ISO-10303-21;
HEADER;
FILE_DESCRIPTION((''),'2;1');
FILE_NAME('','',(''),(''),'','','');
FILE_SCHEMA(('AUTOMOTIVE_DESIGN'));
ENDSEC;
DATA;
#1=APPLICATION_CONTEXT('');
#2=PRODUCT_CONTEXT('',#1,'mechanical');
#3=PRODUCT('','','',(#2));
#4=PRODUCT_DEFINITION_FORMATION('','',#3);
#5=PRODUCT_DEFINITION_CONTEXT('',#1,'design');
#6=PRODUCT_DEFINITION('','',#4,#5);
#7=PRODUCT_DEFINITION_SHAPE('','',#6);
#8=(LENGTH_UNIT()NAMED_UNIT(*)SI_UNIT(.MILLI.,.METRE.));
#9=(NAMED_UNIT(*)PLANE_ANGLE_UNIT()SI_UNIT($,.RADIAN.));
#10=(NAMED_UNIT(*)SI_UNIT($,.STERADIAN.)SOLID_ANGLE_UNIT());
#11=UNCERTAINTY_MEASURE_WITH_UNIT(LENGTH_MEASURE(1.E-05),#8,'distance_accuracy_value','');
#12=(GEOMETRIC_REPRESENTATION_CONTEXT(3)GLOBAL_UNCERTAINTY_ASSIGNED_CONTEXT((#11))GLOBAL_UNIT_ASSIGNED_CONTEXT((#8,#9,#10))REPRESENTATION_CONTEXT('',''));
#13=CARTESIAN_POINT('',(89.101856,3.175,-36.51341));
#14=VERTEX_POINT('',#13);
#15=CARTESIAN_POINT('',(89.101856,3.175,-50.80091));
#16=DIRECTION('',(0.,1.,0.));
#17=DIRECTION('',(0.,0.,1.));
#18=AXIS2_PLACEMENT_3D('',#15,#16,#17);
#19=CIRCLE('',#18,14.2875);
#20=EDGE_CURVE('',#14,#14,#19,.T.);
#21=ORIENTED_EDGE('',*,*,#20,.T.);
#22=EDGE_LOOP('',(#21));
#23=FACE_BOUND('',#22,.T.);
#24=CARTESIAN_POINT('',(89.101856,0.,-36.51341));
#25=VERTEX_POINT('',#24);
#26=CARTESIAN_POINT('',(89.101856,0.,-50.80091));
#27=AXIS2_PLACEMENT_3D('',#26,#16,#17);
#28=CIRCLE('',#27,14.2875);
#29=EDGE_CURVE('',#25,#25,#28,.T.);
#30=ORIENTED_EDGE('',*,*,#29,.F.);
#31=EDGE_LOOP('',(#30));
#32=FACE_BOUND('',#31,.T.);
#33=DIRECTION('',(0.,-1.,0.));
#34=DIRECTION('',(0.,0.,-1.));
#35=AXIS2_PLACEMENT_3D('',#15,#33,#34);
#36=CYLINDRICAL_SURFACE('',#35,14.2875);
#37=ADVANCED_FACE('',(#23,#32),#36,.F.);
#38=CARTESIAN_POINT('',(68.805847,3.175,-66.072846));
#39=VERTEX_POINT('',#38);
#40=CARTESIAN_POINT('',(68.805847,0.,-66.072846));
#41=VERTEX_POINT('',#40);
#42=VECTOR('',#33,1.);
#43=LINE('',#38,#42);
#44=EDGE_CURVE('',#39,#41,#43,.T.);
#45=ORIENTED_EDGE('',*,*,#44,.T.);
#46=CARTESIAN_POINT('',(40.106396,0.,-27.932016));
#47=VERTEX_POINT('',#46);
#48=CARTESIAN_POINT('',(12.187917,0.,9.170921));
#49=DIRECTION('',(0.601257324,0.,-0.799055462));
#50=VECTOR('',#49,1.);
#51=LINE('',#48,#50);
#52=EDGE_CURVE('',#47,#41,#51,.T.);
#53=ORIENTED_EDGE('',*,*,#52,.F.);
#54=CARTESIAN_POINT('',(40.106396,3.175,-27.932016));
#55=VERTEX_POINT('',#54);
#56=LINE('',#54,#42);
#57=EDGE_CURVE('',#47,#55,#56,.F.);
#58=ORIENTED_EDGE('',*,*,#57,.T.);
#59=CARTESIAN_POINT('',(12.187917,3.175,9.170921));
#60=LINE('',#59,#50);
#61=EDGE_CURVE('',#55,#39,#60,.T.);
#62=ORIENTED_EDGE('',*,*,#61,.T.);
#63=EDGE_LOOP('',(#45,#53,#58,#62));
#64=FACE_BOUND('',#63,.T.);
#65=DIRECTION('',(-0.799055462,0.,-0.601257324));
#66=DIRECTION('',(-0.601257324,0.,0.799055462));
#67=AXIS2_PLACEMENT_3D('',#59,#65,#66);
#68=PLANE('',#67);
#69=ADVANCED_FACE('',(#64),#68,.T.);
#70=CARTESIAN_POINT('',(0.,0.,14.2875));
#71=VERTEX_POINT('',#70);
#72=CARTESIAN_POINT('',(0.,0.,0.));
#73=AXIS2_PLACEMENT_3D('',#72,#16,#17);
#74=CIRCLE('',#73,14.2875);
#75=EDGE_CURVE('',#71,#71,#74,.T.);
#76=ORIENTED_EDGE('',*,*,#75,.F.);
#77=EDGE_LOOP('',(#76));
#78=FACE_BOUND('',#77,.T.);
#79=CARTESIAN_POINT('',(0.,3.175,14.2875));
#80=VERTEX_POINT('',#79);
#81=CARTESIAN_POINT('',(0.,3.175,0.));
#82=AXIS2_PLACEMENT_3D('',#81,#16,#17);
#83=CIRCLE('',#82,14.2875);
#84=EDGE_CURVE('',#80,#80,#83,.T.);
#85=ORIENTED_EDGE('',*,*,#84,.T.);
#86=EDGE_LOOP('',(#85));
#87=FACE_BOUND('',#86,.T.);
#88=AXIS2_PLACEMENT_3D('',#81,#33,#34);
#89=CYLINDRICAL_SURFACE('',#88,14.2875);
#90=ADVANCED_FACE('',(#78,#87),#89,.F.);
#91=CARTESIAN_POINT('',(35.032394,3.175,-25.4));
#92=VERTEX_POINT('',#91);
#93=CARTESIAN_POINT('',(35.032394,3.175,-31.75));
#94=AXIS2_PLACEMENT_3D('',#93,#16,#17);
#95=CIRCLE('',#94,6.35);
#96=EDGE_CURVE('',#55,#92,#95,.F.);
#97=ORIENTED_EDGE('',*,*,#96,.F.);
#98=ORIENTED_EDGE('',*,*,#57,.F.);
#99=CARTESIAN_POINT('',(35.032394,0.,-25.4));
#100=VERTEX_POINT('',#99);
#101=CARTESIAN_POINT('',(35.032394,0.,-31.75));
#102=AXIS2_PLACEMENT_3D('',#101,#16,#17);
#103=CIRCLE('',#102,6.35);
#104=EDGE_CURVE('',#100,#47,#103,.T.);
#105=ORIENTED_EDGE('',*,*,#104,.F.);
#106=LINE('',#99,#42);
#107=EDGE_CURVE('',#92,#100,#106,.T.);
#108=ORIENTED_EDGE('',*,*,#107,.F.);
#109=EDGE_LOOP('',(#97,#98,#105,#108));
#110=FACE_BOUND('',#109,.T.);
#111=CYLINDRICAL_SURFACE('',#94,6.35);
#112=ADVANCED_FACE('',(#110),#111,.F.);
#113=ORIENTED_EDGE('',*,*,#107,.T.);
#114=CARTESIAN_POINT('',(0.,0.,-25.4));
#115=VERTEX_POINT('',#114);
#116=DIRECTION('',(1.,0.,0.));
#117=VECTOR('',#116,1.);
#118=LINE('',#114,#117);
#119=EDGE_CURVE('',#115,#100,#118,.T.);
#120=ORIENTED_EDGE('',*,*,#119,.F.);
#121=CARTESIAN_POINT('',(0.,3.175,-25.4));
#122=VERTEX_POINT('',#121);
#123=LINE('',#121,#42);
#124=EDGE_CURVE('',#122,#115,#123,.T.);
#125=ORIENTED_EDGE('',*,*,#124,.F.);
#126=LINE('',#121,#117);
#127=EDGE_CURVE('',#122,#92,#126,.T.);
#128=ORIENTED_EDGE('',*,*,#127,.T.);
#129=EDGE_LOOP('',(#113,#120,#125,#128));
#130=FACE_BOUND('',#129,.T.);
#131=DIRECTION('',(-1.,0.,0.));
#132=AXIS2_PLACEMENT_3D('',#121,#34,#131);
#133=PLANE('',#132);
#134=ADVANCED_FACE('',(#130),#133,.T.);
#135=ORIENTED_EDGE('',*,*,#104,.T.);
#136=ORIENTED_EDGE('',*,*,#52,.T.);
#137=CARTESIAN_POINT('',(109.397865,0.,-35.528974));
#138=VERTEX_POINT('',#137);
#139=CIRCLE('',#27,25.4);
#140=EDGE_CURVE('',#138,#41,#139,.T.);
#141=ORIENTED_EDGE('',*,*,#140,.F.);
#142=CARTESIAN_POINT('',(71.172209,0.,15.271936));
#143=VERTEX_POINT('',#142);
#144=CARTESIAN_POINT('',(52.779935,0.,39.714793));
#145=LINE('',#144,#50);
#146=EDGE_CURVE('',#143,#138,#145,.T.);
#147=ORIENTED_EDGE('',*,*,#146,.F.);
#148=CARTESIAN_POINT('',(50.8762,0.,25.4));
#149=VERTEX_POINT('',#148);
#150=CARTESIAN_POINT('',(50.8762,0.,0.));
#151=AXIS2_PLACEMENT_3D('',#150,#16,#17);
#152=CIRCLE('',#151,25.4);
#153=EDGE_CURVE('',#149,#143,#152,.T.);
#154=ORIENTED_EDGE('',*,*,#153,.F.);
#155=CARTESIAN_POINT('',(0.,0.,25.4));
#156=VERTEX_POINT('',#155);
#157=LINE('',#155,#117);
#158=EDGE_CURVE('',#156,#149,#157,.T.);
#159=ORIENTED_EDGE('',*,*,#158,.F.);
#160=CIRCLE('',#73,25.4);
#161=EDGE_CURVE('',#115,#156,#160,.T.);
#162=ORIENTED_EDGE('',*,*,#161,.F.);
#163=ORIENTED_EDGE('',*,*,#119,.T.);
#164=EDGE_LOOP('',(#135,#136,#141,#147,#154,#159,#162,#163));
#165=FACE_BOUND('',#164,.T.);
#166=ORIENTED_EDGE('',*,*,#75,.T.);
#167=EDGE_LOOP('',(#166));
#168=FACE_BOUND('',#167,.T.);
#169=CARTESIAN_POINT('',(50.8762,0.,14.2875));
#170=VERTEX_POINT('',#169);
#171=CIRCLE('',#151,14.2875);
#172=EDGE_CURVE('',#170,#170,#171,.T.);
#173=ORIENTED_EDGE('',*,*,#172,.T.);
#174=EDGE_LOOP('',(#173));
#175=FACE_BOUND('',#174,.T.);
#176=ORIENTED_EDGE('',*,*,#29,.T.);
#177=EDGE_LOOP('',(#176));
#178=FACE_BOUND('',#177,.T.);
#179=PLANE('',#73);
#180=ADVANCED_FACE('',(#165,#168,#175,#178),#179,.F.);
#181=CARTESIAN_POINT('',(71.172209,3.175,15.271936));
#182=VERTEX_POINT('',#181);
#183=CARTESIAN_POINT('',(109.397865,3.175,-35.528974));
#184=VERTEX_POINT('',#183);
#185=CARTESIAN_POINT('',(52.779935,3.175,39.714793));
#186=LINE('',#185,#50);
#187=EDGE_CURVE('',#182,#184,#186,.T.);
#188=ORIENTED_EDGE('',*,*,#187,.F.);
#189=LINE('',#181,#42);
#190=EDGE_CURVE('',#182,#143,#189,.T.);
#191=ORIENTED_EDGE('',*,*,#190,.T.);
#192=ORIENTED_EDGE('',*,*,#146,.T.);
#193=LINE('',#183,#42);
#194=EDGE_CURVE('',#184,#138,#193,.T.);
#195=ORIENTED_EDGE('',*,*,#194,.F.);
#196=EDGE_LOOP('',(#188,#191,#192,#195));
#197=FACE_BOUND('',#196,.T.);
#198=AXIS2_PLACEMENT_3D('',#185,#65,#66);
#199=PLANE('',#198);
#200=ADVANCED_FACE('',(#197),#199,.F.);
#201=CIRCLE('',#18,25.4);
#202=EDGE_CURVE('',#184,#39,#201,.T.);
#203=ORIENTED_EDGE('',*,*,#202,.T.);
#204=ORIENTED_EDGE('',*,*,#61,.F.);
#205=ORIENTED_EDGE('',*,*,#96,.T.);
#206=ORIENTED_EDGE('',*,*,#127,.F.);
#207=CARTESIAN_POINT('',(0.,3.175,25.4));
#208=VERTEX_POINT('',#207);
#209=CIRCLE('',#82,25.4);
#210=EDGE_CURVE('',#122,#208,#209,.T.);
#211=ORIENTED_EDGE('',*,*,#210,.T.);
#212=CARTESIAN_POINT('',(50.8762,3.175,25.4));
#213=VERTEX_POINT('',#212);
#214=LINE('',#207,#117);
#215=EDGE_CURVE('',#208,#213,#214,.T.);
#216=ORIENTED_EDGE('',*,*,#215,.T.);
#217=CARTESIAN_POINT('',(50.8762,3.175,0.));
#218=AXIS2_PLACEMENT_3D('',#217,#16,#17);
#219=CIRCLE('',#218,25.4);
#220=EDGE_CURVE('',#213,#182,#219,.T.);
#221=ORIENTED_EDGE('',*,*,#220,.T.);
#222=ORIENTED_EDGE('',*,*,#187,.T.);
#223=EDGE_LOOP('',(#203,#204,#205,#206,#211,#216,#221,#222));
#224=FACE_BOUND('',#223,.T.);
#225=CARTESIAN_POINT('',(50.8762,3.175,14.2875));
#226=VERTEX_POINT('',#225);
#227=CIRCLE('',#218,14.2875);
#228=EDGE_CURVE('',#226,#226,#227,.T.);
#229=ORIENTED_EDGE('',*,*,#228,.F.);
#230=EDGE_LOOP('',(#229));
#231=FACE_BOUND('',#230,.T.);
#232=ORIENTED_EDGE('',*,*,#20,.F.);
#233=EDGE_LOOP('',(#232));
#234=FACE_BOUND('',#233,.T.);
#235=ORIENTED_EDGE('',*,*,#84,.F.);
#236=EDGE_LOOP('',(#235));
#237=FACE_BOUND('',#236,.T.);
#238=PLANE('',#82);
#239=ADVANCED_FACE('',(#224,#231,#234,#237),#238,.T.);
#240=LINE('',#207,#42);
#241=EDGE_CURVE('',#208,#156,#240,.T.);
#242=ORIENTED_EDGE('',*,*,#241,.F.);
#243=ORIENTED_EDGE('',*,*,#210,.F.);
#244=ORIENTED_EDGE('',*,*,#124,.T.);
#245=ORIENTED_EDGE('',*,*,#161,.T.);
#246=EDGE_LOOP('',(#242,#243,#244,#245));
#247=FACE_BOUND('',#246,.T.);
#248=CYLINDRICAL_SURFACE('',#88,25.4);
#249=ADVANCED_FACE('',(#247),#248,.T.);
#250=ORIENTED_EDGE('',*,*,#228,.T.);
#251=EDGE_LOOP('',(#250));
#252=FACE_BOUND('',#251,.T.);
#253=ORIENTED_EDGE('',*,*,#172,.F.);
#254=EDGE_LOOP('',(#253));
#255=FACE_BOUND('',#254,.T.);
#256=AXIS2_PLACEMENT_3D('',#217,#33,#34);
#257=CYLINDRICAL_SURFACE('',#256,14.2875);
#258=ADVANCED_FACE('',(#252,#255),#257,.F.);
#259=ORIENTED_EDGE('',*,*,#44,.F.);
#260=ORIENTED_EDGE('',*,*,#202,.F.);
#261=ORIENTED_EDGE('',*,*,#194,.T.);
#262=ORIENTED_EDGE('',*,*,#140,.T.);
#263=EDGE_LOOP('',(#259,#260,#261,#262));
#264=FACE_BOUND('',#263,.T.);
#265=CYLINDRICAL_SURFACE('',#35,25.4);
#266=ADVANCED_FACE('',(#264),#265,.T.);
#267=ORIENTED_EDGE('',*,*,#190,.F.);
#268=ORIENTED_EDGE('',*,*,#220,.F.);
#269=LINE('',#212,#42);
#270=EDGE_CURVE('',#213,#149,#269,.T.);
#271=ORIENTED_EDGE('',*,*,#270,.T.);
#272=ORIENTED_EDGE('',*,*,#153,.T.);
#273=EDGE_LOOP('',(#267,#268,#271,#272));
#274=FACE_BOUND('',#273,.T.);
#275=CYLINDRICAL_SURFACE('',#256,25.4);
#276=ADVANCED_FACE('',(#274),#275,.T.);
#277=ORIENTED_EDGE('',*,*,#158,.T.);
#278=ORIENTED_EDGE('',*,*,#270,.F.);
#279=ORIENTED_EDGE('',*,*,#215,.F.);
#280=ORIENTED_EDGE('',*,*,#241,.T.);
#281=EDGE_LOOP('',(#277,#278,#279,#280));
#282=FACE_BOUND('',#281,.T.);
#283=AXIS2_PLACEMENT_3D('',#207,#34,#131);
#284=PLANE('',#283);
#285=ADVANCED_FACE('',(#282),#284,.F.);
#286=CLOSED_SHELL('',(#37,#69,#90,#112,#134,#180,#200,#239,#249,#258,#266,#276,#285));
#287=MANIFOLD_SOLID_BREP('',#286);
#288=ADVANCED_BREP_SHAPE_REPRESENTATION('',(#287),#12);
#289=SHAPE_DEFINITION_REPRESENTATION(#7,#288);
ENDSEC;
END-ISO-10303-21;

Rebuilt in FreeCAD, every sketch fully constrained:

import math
import FreeCAD as App
import Part
import Sketcher

V = App.Vector
Q = App.Units.Quantity


def edges_at(feature, points):
    """Names of the edges that pass closest to the given points."""
    edges = feature.Shape.Edges
    near = lambda p: min(range(len(edges)), key=lambda i: edges[i].distToShape(Part.Vertex(*p))[0])
    return sorted({f"Edge{near(p) + 1}" for p in points})

doc = App.newDocument("Part")
body = doc.addObject("PartDesign::Body", "Body")

# Sketch on XZ plane
sketch1 = body.newObject("Sketcher::SketchObject", "Sketch")
sketch1.AttachmentSupport = (doc.getObject("XZ_Plane"), [""])
sketch1.MapMode = "FlatFace"
sketch1.addGeometry([
    Part.LineSegment(V(71, 15, 0), V(109, -36, 0)),  # 0
    Part.ArcOfCircle(Part.Circle(V(89, -51, 0), V(0, 0, 1), 25), math.radians(-143), math.radians(37)),  # 1
    Part.LineSegment(V(69, -66, 0), V(38, -25, 0)),  # 2
    Part.LineSegment(V(38, -25, 0), V(0, -25, 0)),  # 3
    Part.ArcOfCircle(Part.Circle(V(0, 0, 0), V(0, 0, 1), 25), math.radians(90), math.radians(270)),  # 4
    Part.LineSegment(V(0, 25, 0), V(51, 25, 0)),  # 5
    Part.ArcOfCircle(Part.Circle(V(51, 0, 0), V(0, 0, 1), 25), math.radians(37), math.radians(90)),  # 6
    Part.Circle(V(0, 0, 0), V(0, 0, 1), 14),  # 7
    Part.Circle(V(51, 0, 0), V(0, 0, 1), 14),  # 8
    Part.Circle(V(89, -51, 0), V(0, 0, 1), 14),  # 9
], False)
sketch1.addConstraint([
    Sketcher.Constraint("Tangent", 0, 2, 1, 2),
    Sketcher.Constraint("Tangent", 1, 1, 2, 1),
    Sketcher.Constraint("Coincident", 2, 2, 3, 1),
    Sketcher.Constraint("Tangent", 3, 2, 4, 2),
    Sketcher.Constraint("Tangent", 4, 1, 5, 1),
    Sketcher.Constraint("Tangent", 5, 2, 6, 2),
    Sketcher.Constraint("Tangent", 6, 1, 0, 1),
    Sketcher.Constraint("Horizontal", 3),
    Sketcher.Constraint("Horizontal", 5),
    Sketcher.Constraint("Coincident", 4, 3, -1, 1),
    Sketcher.Constraint("Coincident", 7, 3, -1, 1),
    Sketcher.Constraint("Coincident", 8, 3, 6, 3),
    Sketcher.Constraint("Coincident", 9, 3, 1, 3),
    Sketcher.Constraint("Equal", 1, 4),
    Sketcher.Constraint("Equal", 4, 6),
    Sketcher.Constraint("Equal", 7, 8),
    Sketcher.Constraint("Equal", 8, 9),
    Sketcher.Constraint("Parallel", 0, 2),
    Sketcher.Constraint("Radius", 1, Q("1 in")),
    Sketcher.Constraint("Diameter", 7, Q("1.125 in")),
    Sketcher.Constraint("DistanceX", 5, 1, 5, 2, Q("2.003 in")),
    Sketcher.Constraint("Angle", 0, Q("-53.04 deg")),
    Sketcher.Constraint("Distance", 0, Q("2.503 in")),
])
pad1 = body.newObject("PartDesign::Pad", "Pad")
pad1.Profile = sketch1
pad1.Length = Q("0.125 in")
pad1.Reversed = True
doc.recompute()

fillet = body.newObject("PartDesign::Fillet", "Fillet")
fillet.Base = (pad1, edges_at(pad1, [(38.201, 1.587, -25.4)]))
fillet.Radius = Q("0.25 in")

doc.recompute()
